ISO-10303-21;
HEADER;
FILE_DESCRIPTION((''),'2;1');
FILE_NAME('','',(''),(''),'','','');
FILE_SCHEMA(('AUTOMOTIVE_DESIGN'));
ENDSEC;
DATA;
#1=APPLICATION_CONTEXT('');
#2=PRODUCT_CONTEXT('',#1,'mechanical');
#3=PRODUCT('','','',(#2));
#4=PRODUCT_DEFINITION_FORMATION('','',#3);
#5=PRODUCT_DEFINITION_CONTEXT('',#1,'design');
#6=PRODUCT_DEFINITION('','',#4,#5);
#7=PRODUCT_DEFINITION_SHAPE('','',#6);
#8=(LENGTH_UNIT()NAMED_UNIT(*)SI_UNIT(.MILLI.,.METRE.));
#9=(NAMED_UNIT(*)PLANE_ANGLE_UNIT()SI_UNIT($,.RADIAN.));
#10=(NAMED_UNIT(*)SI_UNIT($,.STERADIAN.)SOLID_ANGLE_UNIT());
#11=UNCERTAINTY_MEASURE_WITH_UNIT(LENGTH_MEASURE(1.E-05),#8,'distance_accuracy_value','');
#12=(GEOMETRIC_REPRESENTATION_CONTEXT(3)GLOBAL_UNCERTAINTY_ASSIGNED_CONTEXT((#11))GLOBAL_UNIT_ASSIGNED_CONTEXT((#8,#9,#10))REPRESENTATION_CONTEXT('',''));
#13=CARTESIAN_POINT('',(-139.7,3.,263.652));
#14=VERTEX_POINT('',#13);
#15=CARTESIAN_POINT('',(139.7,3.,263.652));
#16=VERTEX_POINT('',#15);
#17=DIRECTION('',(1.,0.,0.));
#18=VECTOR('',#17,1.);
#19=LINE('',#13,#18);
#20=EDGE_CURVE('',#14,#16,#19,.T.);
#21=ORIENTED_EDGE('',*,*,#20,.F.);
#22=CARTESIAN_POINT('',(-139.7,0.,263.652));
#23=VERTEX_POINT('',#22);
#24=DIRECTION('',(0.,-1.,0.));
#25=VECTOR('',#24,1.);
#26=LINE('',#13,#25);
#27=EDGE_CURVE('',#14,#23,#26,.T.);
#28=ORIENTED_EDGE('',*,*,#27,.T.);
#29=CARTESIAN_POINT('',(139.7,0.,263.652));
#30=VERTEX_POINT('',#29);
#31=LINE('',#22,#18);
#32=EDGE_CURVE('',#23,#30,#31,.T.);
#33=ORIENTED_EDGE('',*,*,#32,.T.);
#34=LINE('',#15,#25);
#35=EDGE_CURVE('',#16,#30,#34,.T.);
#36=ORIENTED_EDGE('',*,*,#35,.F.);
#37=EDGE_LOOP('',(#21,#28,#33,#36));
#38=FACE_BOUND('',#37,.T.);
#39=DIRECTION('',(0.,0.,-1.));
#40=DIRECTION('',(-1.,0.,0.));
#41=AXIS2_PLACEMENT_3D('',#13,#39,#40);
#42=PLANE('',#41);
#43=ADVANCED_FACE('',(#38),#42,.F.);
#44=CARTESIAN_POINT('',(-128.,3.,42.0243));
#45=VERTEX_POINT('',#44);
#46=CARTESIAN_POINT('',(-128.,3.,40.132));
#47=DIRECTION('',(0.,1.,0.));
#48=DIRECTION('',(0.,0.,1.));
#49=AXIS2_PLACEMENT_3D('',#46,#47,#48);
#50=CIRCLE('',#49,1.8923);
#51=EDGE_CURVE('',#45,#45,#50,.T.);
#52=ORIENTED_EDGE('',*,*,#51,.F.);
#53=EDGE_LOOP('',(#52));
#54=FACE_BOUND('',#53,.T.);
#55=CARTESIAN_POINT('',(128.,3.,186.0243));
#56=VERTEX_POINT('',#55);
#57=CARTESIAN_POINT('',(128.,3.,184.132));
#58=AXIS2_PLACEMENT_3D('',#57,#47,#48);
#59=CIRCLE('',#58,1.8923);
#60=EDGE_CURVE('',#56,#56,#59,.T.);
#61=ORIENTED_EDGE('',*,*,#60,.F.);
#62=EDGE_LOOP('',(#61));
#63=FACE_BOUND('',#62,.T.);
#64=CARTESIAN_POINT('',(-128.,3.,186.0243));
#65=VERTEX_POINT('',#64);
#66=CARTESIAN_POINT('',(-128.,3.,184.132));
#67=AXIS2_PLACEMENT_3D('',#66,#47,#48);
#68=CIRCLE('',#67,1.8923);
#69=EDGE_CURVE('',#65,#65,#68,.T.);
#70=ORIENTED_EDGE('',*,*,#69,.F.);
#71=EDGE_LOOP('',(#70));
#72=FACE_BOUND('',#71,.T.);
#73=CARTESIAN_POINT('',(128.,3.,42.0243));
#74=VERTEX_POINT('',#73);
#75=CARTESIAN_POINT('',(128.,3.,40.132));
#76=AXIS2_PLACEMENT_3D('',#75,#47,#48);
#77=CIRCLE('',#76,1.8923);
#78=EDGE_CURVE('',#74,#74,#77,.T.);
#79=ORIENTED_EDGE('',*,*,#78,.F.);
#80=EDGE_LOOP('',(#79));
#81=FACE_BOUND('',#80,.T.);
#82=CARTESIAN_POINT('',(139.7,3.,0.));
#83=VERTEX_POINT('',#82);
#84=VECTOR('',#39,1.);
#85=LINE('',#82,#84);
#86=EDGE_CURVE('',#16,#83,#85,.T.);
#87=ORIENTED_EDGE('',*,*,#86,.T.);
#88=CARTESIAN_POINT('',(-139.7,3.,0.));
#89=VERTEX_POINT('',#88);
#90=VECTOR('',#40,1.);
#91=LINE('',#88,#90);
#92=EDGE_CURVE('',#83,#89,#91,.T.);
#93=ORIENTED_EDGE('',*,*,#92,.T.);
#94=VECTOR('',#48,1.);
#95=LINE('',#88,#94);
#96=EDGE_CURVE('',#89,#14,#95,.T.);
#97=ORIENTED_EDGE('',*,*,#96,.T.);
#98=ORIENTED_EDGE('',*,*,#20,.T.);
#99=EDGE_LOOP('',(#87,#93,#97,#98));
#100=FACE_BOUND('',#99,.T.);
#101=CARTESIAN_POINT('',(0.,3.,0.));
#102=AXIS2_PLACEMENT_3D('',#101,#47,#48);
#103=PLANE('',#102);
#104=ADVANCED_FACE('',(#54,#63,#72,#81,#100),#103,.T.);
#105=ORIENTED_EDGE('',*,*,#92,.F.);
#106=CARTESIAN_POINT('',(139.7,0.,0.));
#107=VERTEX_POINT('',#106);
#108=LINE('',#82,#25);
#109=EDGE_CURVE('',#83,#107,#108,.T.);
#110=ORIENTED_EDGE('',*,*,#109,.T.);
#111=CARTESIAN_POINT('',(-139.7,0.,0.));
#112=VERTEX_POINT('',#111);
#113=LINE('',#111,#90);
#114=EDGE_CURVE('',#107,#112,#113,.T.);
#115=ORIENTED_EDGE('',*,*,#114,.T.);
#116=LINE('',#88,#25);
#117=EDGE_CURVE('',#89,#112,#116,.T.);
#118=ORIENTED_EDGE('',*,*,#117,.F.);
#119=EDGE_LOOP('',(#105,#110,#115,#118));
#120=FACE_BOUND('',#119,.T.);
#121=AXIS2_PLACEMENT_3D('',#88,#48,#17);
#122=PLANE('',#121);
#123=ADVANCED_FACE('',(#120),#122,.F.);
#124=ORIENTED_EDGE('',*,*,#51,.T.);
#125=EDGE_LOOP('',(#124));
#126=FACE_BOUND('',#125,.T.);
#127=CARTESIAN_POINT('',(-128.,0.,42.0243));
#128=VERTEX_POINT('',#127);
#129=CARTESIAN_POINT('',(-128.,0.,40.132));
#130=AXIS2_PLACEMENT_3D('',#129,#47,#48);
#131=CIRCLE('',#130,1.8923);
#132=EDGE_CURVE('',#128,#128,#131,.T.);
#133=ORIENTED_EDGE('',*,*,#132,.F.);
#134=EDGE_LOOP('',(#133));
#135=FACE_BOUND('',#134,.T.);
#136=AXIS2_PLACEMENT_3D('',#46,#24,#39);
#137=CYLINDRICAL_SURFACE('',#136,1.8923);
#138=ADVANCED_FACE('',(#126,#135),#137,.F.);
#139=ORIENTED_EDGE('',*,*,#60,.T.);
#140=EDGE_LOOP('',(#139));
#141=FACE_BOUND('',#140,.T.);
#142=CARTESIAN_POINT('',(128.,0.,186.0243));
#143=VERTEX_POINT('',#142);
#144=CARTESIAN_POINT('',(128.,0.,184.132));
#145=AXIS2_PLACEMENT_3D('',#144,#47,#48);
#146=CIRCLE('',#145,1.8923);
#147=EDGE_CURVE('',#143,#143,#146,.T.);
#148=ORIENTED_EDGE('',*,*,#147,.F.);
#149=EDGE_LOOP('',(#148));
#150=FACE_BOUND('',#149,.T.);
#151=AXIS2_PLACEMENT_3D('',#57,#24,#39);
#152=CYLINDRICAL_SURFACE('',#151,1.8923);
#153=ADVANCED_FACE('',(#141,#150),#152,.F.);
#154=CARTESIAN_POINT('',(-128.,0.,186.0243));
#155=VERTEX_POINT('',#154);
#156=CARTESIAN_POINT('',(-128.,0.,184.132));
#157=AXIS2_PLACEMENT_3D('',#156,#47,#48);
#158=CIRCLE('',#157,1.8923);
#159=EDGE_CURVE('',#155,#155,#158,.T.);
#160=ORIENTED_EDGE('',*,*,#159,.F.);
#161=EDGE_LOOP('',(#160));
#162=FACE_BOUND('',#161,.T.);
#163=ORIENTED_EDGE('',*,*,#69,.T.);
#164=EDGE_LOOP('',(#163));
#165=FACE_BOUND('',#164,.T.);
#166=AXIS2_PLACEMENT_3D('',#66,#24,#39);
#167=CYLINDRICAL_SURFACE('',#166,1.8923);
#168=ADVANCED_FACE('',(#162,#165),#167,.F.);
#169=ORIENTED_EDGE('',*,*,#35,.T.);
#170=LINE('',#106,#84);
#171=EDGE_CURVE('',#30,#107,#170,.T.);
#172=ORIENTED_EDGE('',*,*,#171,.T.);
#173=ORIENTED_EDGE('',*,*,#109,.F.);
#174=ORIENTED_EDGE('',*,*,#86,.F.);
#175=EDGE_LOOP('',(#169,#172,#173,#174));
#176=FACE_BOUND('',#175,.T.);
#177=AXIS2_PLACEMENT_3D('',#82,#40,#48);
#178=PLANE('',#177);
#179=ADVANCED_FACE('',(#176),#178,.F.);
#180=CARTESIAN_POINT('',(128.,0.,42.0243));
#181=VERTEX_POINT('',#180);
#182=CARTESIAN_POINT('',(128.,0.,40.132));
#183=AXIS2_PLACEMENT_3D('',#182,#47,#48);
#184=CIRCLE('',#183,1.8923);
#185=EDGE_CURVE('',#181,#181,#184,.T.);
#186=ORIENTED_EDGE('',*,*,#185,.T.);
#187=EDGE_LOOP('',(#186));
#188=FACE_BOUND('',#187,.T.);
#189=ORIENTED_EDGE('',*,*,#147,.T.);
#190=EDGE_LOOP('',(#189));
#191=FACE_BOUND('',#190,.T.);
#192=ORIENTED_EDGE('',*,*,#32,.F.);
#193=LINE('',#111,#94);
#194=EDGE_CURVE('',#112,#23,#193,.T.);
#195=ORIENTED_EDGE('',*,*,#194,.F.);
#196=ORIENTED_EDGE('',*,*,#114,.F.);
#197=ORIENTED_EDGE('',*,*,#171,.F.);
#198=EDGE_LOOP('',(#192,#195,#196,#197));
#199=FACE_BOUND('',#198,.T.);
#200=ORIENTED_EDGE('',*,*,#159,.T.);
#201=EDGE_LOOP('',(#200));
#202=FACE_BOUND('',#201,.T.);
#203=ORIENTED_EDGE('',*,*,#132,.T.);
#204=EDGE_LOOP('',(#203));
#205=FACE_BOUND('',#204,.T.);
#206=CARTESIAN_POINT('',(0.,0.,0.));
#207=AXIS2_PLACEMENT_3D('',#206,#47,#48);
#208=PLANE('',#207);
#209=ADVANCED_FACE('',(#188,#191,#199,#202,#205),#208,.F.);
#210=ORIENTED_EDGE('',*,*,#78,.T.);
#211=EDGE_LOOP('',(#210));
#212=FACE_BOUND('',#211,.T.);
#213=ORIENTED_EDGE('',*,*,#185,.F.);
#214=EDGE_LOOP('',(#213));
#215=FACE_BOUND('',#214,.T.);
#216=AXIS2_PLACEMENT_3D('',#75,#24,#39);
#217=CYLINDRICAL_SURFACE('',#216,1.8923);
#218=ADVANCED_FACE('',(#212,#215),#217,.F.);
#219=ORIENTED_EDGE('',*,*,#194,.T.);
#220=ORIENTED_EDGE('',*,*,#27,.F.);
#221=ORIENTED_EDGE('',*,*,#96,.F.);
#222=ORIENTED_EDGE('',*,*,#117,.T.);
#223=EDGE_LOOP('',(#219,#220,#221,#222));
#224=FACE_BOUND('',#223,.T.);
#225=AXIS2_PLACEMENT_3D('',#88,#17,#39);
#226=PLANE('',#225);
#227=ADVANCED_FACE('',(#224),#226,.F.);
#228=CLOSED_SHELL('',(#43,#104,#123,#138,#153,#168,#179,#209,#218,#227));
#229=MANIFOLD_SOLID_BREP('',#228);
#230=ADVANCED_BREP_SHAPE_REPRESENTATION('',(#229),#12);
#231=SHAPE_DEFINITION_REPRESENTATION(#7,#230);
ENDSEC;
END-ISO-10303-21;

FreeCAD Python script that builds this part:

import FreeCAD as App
import Part
import Sketcher

V = App.Vector
Q = App.Units.Quantity

doc = App.newDocument("Part")
body = doc.addObject("PartDesign::Body", "Body")

# Sketch on XZ plane
sketch1 = body.newObject("Sketcher::SketchObject", "Sketch")
sketch1.AttachmentSupport = (doc.getObject("XZ_Plane"), [""])
sketch1.MapMode = "FlatFace"
sketch1.addGeometry(Part.LineSegment(V(-139.7, 0, 0), V(-139.7, 263.7, 0)), False)
sketch1.addGeometry(Part.LineSegment(V(-139.7, 263.7, 0), V(139.7, 263.7, 0)), False)
sketch1.addGeometry(Part.LineSegment(V(139.7, 263.7, 0), V(139.7, 0, 0)), False)
sketch1.addGeometry(Part.LineSegment(V(139.7, 0, 0), V(-139.7, 0, 0)), False)
sketch1.addGeometry(Part.Circle(V(-128, 184.1, 0), V(0, 0, 1), 1.9), False)
sketch1.addGeometry(Part.Circle(V(128, 184.1, 0), V(0, 0, 1), 1.9), False)
sketch1.addGeometry(Part.Circle(V(-128, 40.1, 0), V(0, 0, 1), 1.9), False)
sketch1.addGeometry(Part.Circle(V(128, 40.1, 0), V(0, 0, 1), 1.9), False)
sketch1.addConstraint(Sketcher.Constraint("Coincident", 0, 2, 1, 1))
sketch1.addConstraint(Sketcher.Constraint("Coincident", 1, 2, 2, 1))
sketch1.addConstraint(Sketcher.Constraint("Coincident", 2, 2, 3, 1))
sketch1.addConstraint(Sketcher.Constraint("Coincident", 3, 2, 0, 1))
sketch1.addConstraint(Sketcher.Constraint("Vertical", 0))
sketch1.addConstraint(Sketcher.Constraint("Horizontal", 1))
sketch1.addConstraint(Sketcher.Constraint("Vertical", 2))
sketch1.addConstraint(Sketcher.Constraint("Horizontal", 3))
sketch1.addConstraint(Sketcher.Constraint("Equal", 4, 5))
sketch1.addConstraint(Sketcher.Constraint("Equal", 5, 6))
sketch1.addConstraint(Sketcher.Constraint("Equal", 6, 7))
sketch1.addConstraint(Sketcher.Constraint("Symmetric", 2, 2, 3, 2, -1, 1))
sketch1.addConstraint(Sketcher.Constraint("Symmetric", 4, 3, 5, 3, -2))
sketch1.addConstraint(Sketcher.Constraint("Symmetric", 6, 3, 7, 3, -2))
sketch1.addConstraint(Sketcher.Constraint("Vertical", 4, 3, 6, 3))
sketch1.addConstraint(Sketcher.Constraint("DistanceX", 1, 1, 1, 2, Q("11 in")))
sketch1.addConstraint(Sketcher.Constraint("Diameter", 4, Q("0.149 in")))
sketch1.addConstraint(Sketcher.Constraint("DistanceY", 0, 1, 0, 2, Q("10.38 in")))
sketch1.addConstraint(Sketcher.Constraint("DistanceY", 6, 3, 0, 2, Q("8.8 in")))
sketch1.addConstraint(Sketcher.Constraint("DistanceX", 4, 3, -1, 1, Q("128 mm")))
sketch1.addConstraint(Sketcher.Constraint("DistanceY", -1, 1, 4, 3, Q("184.132 mm")))
pad1 = body.newObject("PartDesign::Pad", "Pad")
pad1.Profile = sketch1
pad1.Length = 3
pad1.Reversed = True

doc.recompute()
